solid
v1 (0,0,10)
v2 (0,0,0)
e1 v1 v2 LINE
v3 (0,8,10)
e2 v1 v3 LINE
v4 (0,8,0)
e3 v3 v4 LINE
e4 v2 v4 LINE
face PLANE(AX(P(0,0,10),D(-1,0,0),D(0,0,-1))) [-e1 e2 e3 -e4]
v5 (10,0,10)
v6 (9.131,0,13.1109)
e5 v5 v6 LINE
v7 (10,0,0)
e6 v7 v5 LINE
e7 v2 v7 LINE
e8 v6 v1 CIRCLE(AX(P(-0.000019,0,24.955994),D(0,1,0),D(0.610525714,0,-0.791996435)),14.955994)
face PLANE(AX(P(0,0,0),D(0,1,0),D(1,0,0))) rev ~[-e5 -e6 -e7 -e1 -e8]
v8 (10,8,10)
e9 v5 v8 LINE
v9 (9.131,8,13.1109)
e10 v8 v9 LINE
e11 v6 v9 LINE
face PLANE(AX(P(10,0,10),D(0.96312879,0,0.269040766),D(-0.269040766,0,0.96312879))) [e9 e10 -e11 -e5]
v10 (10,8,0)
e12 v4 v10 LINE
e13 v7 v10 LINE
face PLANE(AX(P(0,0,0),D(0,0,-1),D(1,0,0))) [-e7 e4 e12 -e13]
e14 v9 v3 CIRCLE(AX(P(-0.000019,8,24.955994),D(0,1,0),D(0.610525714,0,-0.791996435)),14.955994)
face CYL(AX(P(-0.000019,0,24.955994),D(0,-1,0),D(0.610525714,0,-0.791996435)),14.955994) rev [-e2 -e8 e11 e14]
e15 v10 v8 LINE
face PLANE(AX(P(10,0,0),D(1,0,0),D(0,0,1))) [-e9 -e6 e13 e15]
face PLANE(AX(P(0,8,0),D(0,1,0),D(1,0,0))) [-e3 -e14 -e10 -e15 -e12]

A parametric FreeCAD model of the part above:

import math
import FreeCAD as App
import Part
import Sketcher
Q = App.Units.Quantity

doc = App.newDocument("Part")
body = doc.addObject("PartDesign::Body", "Body")

sketch1 = body.newObject("Sketcher::SketchObject", "Sketch")
sketch1.AttachmentSupport = (doc.getObject("XZ_Plane"), [""])
sketch1.MapMode = "FlatFace"
sketch1.addGeometry([
    Part.LineSegment(App.Vector(10, 0, 0), App.Vector(0, 0, 0)),
    Part.LineSegment(App.Vector(0, 0, 0), App.Vector(0, 10, 0)),
    Part.ArcOfCircle(Part.Circle(App.Vector(0, 24.956, 0), App.Vector(0, 0, 1), 14.955987), math.radians(-90), math.radians(-52.372546)),
    Part.LineSegment(App.Vector(9.131, 13.1109, 0), App.Vector(10, 10, 0)),
    Part.LineSegment(App.Vector(10, 10, 0), App.Vector(10, 0, 0)),
], False)
sketch1.addConstraint([
    Sketcher.Constraint("Coincident", 0, 2, 1, 1),
    Sketcher.Constraint("Coincident", 1, 2, 2, 1),
    Sketcher.Constraint("Coincident", 2, 2, 3, 1),
    Sketcher.Constraint("Coincident", 3, 2, 4, 1),
    Sketcher.Constraint("Coincident", 4, 2, 0, 1),
    Sketcher.Constraint("Horizontal", 0),
    Sketcher.Constraint("Vertical", 1),
    Sketcher.Constraint("Vertical", 4),
    Sketcher.Constraint("Coincident", 0, 2, -1, 1),
    Sketcher.Constraint("PointOnObject", 2, 3, -2),
    Sketcher.Constraint("Horizontal", 1, 2, 3, 2),
    Sketcher.Constraint("Equal", 0, 1),
    Sketcher.Constraint("DistanceX", 0, 2, 0, 1, Q("10 mm")),
    Sketcher.Constraint("Distance", 3, Q("3.23 mm")),
    Sketcher.Constraint("Radius", 2, Q("14.956 mm")),
])
pad1 = body.newObject("PartDesign::Pad", "Pad")
pad1.Profile = sketch1
pad1.Length = 8
pad1.Reversed = True

doc.recompute()
